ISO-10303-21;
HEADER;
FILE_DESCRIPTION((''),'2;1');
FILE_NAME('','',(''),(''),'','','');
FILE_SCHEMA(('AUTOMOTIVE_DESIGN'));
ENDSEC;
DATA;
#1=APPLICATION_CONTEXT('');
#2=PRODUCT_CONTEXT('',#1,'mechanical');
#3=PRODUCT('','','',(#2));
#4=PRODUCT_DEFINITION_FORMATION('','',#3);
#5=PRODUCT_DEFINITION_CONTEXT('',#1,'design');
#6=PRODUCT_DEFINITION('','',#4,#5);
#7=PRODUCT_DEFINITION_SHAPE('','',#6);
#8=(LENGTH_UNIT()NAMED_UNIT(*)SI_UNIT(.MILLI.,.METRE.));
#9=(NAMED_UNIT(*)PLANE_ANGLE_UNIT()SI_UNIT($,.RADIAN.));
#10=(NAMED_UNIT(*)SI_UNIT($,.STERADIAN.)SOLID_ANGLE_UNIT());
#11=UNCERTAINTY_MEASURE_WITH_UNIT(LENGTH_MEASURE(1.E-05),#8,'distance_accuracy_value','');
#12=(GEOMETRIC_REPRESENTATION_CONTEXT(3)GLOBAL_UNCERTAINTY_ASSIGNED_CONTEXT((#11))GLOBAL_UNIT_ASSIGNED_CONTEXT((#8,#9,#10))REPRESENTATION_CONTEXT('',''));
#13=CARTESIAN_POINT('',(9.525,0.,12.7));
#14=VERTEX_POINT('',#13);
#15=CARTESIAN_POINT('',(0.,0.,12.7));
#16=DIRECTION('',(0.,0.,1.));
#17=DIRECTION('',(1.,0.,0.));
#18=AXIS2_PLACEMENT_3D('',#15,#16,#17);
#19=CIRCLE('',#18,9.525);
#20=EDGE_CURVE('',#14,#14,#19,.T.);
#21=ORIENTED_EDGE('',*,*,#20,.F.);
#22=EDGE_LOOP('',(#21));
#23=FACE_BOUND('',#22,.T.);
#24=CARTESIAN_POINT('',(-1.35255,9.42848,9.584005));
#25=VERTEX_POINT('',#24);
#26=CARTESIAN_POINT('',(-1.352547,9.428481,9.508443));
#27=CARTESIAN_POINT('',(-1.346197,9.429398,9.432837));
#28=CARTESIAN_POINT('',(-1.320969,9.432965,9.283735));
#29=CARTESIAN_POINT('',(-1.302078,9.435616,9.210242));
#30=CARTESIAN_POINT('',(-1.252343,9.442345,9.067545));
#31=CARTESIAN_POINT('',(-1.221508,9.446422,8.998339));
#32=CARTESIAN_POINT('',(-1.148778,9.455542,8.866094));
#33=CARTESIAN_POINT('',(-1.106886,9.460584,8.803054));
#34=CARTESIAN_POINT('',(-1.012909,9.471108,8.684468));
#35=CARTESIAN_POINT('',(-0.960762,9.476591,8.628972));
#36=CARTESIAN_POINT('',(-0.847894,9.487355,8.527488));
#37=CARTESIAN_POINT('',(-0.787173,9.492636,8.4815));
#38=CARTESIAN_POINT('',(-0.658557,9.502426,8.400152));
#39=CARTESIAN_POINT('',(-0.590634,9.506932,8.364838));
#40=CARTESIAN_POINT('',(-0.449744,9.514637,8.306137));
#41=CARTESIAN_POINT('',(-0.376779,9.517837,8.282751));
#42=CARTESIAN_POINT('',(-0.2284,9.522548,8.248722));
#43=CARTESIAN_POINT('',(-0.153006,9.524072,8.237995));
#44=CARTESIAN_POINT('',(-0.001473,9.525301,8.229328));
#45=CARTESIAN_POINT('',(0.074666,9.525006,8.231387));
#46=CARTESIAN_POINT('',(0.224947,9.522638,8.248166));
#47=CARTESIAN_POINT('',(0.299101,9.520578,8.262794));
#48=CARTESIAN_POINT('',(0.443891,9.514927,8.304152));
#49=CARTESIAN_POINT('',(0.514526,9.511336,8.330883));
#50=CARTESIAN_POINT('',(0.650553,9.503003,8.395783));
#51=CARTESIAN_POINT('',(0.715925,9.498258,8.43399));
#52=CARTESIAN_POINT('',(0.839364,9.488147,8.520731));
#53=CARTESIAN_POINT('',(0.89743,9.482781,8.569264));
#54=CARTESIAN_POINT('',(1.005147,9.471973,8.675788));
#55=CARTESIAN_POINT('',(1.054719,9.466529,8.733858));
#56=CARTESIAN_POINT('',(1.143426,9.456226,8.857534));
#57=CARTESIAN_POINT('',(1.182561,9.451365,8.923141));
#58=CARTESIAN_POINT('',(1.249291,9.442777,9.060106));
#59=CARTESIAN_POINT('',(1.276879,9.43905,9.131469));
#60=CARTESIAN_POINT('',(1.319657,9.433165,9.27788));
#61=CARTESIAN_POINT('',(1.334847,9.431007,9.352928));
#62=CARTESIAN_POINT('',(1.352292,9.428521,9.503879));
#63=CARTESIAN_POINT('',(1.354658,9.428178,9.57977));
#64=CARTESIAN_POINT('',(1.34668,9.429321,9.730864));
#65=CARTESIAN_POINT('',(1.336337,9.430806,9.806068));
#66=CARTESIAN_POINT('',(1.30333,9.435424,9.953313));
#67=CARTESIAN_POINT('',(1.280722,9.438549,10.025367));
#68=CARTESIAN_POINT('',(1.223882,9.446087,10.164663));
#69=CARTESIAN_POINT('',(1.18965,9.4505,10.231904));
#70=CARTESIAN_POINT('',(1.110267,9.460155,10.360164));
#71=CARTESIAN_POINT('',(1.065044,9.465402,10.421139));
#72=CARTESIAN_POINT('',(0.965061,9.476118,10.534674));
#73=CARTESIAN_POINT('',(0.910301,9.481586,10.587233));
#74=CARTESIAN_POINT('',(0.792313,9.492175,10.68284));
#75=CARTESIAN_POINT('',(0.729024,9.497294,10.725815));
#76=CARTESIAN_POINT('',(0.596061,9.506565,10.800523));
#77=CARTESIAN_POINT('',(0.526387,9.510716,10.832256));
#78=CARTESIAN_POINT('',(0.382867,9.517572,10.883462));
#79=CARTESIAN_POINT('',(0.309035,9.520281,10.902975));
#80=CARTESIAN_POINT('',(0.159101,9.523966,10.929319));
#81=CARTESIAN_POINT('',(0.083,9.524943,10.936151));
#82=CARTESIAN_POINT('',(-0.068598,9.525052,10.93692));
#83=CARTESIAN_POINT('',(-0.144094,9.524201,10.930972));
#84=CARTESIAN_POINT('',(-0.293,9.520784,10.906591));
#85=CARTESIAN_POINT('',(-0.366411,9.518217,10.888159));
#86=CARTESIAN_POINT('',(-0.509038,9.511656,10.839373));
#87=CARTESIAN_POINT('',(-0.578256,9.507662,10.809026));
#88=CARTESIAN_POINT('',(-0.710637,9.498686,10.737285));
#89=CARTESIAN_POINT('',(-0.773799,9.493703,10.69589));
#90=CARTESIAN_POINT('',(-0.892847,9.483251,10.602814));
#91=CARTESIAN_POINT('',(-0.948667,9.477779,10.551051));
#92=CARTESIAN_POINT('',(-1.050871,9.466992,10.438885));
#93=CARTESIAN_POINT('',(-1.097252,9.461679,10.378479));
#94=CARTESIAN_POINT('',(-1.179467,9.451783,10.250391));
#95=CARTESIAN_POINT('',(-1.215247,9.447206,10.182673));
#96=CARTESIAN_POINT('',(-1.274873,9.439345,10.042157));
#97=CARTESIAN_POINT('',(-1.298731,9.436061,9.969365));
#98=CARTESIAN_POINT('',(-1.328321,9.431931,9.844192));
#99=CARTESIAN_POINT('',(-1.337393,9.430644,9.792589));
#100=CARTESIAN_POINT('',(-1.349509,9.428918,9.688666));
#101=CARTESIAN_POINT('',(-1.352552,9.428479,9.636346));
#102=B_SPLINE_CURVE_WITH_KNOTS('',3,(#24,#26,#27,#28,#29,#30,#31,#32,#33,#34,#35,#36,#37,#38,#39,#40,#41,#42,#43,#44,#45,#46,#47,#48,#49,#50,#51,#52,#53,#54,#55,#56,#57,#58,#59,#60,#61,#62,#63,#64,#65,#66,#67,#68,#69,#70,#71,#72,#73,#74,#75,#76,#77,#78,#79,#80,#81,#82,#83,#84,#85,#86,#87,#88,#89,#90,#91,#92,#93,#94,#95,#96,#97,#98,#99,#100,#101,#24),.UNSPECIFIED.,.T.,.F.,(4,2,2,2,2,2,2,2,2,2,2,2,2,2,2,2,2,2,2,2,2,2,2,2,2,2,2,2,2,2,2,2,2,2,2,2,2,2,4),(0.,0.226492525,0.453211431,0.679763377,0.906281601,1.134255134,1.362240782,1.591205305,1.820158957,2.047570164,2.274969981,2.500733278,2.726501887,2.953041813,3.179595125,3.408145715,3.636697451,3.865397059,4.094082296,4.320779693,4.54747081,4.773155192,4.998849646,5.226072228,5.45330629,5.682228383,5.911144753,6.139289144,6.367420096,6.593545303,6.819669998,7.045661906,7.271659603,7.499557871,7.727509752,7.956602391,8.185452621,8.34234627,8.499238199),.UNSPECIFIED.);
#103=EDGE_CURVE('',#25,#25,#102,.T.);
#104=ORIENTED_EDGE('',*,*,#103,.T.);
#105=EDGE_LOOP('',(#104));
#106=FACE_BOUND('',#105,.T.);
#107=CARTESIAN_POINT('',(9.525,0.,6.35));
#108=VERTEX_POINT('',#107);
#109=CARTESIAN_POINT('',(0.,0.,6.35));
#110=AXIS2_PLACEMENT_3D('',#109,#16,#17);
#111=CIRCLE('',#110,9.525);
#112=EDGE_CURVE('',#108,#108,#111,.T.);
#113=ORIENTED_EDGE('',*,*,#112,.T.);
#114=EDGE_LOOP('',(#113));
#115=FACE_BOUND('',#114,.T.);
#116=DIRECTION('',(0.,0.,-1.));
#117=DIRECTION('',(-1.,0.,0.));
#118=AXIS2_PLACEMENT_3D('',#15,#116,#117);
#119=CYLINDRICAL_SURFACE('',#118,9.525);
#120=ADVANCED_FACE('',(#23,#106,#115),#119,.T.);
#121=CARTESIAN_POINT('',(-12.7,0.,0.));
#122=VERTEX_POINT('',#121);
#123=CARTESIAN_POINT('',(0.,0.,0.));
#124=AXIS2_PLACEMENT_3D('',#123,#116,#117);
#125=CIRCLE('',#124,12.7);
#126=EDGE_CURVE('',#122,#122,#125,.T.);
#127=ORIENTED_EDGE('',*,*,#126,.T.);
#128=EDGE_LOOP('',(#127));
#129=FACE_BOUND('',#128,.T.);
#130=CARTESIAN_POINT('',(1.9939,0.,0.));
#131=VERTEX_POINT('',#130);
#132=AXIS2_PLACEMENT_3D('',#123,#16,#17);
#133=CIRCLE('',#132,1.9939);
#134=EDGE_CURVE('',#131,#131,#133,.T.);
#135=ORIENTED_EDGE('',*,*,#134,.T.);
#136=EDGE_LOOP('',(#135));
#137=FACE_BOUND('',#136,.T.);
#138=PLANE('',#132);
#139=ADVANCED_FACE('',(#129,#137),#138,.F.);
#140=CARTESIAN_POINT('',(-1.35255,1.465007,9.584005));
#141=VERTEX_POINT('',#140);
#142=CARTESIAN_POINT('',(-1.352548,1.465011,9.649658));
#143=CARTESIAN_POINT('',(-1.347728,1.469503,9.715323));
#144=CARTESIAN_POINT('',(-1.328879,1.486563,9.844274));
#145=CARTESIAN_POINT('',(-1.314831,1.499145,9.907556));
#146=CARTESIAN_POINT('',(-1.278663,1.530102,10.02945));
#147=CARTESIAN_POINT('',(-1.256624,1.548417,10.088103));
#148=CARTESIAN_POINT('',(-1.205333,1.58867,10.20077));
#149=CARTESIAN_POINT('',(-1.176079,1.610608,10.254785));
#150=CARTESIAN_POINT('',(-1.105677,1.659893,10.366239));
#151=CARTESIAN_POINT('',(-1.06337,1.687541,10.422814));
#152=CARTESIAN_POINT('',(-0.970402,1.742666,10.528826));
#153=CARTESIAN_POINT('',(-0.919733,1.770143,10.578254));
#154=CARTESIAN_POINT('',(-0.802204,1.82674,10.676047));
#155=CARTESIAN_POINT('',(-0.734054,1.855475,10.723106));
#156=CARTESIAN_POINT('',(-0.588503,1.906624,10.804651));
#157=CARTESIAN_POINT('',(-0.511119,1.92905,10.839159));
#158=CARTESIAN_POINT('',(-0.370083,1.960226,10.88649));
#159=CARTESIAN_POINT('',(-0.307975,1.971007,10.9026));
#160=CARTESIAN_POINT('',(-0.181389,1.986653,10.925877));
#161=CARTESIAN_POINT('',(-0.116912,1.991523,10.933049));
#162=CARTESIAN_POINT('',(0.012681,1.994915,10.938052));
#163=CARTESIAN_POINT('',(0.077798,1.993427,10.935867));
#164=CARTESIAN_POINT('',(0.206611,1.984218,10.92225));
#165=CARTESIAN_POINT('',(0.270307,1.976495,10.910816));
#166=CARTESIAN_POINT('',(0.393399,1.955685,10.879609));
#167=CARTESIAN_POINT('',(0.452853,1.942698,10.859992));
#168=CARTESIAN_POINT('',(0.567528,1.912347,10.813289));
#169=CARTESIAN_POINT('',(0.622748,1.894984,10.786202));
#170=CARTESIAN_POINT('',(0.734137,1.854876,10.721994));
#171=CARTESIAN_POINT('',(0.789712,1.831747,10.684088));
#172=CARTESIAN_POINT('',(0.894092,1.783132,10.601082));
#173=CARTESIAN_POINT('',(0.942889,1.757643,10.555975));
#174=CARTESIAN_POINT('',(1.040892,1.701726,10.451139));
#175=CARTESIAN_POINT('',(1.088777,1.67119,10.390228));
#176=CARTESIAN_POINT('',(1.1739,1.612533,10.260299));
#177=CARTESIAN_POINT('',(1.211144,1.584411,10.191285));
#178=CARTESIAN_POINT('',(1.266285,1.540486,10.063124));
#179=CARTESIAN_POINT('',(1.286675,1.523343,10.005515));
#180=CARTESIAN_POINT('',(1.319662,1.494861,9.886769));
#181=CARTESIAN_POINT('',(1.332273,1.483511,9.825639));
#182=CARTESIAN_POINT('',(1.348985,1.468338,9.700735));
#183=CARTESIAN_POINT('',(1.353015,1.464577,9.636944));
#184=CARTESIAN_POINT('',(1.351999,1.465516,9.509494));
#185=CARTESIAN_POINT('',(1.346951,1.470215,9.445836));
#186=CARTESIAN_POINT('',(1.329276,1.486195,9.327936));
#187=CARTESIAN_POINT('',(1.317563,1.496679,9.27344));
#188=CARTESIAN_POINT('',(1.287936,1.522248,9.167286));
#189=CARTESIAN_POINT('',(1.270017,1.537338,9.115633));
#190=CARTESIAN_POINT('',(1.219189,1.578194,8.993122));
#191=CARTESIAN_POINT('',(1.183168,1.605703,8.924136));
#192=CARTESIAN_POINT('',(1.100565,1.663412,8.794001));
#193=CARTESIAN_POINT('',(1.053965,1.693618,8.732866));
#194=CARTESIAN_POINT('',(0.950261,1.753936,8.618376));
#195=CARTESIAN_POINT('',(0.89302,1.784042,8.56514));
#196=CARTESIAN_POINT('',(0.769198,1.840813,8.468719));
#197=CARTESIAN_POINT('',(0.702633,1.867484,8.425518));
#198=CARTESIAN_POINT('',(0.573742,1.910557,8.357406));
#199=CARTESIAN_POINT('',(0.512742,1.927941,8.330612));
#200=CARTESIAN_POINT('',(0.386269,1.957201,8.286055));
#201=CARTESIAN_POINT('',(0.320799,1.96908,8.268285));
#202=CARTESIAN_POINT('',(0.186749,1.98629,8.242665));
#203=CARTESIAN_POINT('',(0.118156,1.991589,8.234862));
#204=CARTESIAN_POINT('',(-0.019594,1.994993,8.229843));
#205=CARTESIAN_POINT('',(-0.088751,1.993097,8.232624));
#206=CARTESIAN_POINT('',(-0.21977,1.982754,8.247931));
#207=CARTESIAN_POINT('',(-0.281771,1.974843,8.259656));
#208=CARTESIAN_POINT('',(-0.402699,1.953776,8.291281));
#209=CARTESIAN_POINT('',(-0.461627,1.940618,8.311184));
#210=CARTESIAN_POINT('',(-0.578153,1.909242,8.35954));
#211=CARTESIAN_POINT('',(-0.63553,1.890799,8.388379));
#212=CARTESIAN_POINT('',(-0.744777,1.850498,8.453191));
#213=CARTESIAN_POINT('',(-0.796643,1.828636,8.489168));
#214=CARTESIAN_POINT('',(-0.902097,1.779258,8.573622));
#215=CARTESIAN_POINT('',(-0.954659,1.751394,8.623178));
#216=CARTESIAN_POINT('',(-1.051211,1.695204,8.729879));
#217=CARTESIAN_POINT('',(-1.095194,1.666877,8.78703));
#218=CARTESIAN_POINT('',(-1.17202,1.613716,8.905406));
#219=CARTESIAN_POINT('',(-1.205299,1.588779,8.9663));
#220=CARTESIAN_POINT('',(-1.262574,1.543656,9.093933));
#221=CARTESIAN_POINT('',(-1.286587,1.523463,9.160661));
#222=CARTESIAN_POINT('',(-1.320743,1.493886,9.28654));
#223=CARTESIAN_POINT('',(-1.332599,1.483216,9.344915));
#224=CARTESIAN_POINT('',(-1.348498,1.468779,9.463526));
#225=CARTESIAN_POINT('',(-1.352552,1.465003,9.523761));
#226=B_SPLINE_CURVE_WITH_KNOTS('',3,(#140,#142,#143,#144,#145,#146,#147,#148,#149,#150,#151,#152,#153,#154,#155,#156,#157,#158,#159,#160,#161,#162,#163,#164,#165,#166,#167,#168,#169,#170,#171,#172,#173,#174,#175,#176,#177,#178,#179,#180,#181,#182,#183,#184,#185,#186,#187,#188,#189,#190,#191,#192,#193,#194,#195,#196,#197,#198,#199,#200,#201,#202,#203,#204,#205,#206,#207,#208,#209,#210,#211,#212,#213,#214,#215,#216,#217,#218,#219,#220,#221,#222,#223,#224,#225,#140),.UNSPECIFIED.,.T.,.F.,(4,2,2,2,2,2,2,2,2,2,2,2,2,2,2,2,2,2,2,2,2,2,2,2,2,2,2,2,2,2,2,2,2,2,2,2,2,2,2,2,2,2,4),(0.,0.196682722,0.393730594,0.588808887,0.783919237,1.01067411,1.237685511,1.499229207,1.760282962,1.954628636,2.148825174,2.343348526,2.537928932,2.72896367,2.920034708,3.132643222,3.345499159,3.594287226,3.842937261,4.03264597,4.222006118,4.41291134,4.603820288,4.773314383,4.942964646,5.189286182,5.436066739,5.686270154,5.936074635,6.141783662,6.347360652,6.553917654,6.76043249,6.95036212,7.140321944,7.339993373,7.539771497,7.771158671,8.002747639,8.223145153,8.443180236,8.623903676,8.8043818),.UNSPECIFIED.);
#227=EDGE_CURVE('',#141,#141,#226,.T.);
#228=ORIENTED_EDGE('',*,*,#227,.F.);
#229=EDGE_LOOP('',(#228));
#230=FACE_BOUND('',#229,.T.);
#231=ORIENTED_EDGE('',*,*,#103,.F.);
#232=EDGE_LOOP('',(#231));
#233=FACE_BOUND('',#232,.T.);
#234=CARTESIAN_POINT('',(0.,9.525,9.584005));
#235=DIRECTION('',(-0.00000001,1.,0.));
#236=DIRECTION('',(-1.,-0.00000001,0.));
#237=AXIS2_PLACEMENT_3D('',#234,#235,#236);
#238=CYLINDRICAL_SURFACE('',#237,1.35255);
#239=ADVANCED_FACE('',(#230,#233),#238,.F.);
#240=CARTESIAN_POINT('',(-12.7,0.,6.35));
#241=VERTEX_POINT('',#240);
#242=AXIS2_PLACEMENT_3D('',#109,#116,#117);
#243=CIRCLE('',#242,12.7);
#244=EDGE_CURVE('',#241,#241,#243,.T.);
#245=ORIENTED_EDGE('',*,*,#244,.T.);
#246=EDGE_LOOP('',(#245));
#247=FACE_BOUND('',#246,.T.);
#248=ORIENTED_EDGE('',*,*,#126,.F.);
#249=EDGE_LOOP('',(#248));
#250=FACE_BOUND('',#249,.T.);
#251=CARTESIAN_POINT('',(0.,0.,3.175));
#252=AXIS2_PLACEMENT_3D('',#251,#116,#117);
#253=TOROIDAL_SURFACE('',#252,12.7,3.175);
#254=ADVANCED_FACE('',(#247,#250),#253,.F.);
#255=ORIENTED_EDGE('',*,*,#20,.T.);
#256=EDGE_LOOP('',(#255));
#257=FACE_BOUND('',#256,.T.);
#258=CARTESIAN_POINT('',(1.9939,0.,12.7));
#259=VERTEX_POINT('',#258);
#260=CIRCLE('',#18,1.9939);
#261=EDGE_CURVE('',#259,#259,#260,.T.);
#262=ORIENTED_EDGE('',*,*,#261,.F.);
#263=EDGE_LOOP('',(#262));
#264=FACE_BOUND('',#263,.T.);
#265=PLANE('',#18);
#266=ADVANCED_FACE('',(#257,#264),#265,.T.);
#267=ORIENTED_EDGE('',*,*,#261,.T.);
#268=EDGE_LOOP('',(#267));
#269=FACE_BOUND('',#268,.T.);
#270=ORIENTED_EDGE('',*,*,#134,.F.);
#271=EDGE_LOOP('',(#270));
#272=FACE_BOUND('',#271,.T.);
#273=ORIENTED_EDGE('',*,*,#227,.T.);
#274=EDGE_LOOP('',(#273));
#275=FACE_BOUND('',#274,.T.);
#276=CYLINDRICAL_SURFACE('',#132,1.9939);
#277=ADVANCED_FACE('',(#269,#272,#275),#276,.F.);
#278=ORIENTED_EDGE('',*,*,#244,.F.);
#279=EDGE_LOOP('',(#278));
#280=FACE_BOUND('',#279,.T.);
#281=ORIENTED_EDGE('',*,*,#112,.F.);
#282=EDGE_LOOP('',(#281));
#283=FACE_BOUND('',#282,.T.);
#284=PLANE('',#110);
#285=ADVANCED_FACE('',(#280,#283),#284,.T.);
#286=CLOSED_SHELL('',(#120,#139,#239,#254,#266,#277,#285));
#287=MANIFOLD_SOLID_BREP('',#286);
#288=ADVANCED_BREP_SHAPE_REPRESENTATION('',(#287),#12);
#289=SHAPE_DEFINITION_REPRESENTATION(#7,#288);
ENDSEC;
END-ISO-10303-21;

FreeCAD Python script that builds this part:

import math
import FreeCAD as App
import Part
import Sketcher
from FreeCAD import Vector
Q = App.Units.Quantity

doc = App.newDocument("Part")
body = doc.addObject("PartDesign::Body", "Body")

sketch1 = body.newObject("Sketcher::SketchObject", "Sketch")
sketch1.AttachmentSupport = (doc.getObject("XY_Plane"), [""])
sketch1.MapMode = "FlatFace"
sketch1.addGeometry(Part.Circle(Vector(0, 0, 0), Vector(0, 0, 1), 13), False)
sketch1.addConstraint(Sketcher.Constraint("Coincident", 0, 3, -1, 1))
sketch1.addConstraint(Sketcher.Constraint("Diameter", 0, Q("1 in")))
pad1 = body.newObject("PartDesign::Pad", "Pad")
pad1.Profile = sketch1
pad1.Length = Q("0.25 in")

sketch2 = body.newObject("Sketcher::SketchObject", "Sketch001")
sketch2.AttachmentSupport = (doc.getObject("XY_Plane"), [""])
sketch2.MapMode = "FlatFace"
sketch2.AttachmentOffset = App.Placement(Vector(0, 0, 0.25 * 25.4), App.Rotation())
sketch2.addGeometry(Part.Circle(Vector(0, 0, 0), Vector(0, 0, 1), 10), False)
sketch2.addConstraint(Sketcher.Constraint("Coincident", 0, 3, -1, 1))
sketch2.addConstraint(Sketcher.Constraint("Diameter", 0, Q("0.75 in")))
pad2 = body.newObject("PartDesign::Pad", "Pad001")
pad2.Profile = sketch2
pad2.Length = Q("0.25 in")

sketch3 = body.newObject("Sketcher::SketchObject", "Sketch002")
sketch3.AttachmentSupport = (doc.getObject("XY_Plane"), [""])
sketch3.MapMode = "FlatFace"
sketch3.AttachmentOffset = App.Placement(Vector(0, 0, 0.5 * 25.4), App.Rotation())
sketch3.addGeometry(Part.Circle(Vector(0, 0, 0), Vector(0, 0, 1), 2), False)
sketch3.addConstraint(Sketcher.Constraint("Coincident", 0, 3, -1, 1))
sketch3.addConstraint(Sketcher.Constraint("Diameter", 0, Q("0.157 in")))
pocket1 = body.newObject("PartDesign::Pocket", "Pocket")
pocket1.Profile = sketch3
pocket1.Length = Q("0.5 in")

sketch4 = body.newObject("Sketcher::SketchObject", "Sketch003")
sketch4.AttachmentSupport = (doc.getObject("XZ_Plane"), [""])
sketch4.MapMode = "FlatFace"
sketch4.addGeometry(Part.LineSegment(Vector(12.7, 6.3, 0), Vector(12.7, 0, 0)), False)
sketch4.addGeometry(Part.ArcOfCircle(Part.Circle(Vector(12.7, 3.2, 0), Vector(0, 0, 1), 3.2), math.radians(90), math.radians(270)), False)
sketch4.addConstraint(Sketcher.Constraint("Coincident", 0, 1, 1, 1))
sketch4.addConstraint(Sketcher.Constraint("Coincident", 1, 2, 0, 2))
sketch4.addConstraint(Sketcher.Constraint("Vertical", 0))
sketch4.addConstraint(Sketcher.Constraint("PointOnObject", 1, 2, -1))
sketch4.addConstraint(Sketcher.Constraint("Vertical", 1, 3, 0, 1))
sketch4.addConstraint(Sketcher.Constraint("Radius", 1, Q("0.125 in")))
sketch4.addConstraint(Sketcher.Constraint("DistanceX", -1, 1, 1, 3, Q("0.5 in")))
groove = body.newObject("PartDesign::Groove", "Groove")
groove.Profile = sketch4
groove.ReferenceAxis = (sketch4, ["V_Axis"])
groove.Angle = 360

sketch5 = body.newObject("Sketcher::SketchObject", "Sketch004")
sketch5.AttachmentSupport = (doc.getObject("XZ_Plane"), [""])
sketch5.MapMode = "FlatFace"
sketch5.AttachmentOffset = App.Placement(Vector(0, 0, -0.375 * 25.4), App.Rotation())
sketch5.addGeometry(Part.Circle(Vector(0, 9.6, 0), Vector(0, 0, 1), 1.4), False)
sketch5.addConstraint(Sketcher.Constraint("PointOnObject", 0, 3, -2))
sketch5.addConstraint(Sketcher.Constraint("Diameter", 0, Q("0.1065 in")))
sketch5.addConstraint(Sketcher.Constraint("DistanceY", -1, 1, 0, 3, Q("9.584005 mm")))
doc.recompute()
hole = body.newObject("PartDesign::Hole", "Hole")
hole.Profile = sketch5
hole.ThreadType = "None"
hole.Diameter = Q("0.1065 in")
hole.DepthType = "Dimension"
hole.Depth = 9.524
hole.DrillPoint = "Angled"
hole.DrillPointAngle = 118
hole.Reversed = True

doc.recompute()
